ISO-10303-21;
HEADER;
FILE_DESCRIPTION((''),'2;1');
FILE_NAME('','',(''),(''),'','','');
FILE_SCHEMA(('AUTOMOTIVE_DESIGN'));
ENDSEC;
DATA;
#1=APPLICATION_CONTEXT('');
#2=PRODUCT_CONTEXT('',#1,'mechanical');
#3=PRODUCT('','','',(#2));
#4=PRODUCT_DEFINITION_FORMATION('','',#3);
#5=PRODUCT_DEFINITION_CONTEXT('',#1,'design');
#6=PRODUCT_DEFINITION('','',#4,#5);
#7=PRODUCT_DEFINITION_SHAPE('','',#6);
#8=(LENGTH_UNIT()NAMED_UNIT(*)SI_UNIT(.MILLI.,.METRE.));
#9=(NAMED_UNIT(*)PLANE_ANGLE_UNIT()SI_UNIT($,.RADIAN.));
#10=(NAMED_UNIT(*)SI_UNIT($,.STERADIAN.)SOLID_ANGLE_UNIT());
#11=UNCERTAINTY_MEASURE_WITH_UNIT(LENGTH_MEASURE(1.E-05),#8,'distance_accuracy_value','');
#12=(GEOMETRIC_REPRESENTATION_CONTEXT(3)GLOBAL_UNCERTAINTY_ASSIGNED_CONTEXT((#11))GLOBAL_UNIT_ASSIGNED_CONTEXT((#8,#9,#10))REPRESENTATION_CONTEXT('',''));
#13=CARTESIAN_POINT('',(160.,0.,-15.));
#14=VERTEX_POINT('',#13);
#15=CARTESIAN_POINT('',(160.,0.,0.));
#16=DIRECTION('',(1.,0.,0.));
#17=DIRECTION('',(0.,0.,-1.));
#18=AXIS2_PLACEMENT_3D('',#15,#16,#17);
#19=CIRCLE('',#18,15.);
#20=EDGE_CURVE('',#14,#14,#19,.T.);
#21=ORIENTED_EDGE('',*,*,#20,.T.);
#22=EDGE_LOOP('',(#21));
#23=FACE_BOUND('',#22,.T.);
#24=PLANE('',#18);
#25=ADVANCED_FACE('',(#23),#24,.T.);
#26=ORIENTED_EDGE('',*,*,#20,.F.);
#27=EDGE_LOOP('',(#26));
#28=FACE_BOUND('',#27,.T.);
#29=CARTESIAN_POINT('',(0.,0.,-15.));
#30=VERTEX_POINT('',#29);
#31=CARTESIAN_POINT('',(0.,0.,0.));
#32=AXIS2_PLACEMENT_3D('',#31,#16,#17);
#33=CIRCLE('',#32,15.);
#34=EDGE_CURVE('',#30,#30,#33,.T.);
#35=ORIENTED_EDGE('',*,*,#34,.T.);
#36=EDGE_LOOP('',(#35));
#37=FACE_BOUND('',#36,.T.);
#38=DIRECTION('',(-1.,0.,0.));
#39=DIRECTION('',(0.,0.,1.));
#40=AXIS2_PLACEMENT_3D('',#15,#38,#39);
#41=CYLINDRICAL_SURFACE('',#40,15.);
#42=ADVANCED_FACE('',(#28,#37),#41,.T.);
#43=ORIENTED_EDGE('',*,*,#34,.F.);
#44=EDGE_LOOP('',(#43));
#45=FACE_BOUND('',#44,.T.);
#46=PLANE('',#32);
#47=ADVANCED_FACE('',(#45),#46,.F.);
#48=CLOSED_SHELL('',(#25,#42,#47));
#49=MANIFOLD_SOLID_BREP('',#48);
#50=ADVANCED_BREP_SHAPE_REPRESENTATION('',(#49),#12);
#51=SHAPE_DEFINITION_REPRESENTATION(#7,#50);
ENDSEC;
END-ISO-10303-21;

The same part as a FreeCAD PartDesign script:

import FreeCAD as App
import Part
import Sketcher
from FreeCAD import Vector
Q = App.Units.Quantity

doc = App.newDocument("Part")
body = doc.addObject("PartDesign::Body", "Body")

# Sketch on YZ plane
sketch1 = body.newObject("Sketcher::SketchObject", "Sketch")
sketch1.AttachmentSupport = (doc.getObject("YZ_Plane"), [""])
sketch1.MapMode = "FlatFace"
sketch1.addGeometry(Part.Circle(Vector(0, 0, 0), Vector(0, 0, 1), 15), False)
sketch1.addConstraint([
    Sketcher.Constraint("Coincident", 0, 3, -1, 1),
    Sketcher.Constraint("Diameter", 0, Q("30 mm")),
])
pad1 = body.newObject("PartDesign::Pad", "Pad")
pad1.Profile = sketch1
pad1.Length = 160

doc.recompute()
